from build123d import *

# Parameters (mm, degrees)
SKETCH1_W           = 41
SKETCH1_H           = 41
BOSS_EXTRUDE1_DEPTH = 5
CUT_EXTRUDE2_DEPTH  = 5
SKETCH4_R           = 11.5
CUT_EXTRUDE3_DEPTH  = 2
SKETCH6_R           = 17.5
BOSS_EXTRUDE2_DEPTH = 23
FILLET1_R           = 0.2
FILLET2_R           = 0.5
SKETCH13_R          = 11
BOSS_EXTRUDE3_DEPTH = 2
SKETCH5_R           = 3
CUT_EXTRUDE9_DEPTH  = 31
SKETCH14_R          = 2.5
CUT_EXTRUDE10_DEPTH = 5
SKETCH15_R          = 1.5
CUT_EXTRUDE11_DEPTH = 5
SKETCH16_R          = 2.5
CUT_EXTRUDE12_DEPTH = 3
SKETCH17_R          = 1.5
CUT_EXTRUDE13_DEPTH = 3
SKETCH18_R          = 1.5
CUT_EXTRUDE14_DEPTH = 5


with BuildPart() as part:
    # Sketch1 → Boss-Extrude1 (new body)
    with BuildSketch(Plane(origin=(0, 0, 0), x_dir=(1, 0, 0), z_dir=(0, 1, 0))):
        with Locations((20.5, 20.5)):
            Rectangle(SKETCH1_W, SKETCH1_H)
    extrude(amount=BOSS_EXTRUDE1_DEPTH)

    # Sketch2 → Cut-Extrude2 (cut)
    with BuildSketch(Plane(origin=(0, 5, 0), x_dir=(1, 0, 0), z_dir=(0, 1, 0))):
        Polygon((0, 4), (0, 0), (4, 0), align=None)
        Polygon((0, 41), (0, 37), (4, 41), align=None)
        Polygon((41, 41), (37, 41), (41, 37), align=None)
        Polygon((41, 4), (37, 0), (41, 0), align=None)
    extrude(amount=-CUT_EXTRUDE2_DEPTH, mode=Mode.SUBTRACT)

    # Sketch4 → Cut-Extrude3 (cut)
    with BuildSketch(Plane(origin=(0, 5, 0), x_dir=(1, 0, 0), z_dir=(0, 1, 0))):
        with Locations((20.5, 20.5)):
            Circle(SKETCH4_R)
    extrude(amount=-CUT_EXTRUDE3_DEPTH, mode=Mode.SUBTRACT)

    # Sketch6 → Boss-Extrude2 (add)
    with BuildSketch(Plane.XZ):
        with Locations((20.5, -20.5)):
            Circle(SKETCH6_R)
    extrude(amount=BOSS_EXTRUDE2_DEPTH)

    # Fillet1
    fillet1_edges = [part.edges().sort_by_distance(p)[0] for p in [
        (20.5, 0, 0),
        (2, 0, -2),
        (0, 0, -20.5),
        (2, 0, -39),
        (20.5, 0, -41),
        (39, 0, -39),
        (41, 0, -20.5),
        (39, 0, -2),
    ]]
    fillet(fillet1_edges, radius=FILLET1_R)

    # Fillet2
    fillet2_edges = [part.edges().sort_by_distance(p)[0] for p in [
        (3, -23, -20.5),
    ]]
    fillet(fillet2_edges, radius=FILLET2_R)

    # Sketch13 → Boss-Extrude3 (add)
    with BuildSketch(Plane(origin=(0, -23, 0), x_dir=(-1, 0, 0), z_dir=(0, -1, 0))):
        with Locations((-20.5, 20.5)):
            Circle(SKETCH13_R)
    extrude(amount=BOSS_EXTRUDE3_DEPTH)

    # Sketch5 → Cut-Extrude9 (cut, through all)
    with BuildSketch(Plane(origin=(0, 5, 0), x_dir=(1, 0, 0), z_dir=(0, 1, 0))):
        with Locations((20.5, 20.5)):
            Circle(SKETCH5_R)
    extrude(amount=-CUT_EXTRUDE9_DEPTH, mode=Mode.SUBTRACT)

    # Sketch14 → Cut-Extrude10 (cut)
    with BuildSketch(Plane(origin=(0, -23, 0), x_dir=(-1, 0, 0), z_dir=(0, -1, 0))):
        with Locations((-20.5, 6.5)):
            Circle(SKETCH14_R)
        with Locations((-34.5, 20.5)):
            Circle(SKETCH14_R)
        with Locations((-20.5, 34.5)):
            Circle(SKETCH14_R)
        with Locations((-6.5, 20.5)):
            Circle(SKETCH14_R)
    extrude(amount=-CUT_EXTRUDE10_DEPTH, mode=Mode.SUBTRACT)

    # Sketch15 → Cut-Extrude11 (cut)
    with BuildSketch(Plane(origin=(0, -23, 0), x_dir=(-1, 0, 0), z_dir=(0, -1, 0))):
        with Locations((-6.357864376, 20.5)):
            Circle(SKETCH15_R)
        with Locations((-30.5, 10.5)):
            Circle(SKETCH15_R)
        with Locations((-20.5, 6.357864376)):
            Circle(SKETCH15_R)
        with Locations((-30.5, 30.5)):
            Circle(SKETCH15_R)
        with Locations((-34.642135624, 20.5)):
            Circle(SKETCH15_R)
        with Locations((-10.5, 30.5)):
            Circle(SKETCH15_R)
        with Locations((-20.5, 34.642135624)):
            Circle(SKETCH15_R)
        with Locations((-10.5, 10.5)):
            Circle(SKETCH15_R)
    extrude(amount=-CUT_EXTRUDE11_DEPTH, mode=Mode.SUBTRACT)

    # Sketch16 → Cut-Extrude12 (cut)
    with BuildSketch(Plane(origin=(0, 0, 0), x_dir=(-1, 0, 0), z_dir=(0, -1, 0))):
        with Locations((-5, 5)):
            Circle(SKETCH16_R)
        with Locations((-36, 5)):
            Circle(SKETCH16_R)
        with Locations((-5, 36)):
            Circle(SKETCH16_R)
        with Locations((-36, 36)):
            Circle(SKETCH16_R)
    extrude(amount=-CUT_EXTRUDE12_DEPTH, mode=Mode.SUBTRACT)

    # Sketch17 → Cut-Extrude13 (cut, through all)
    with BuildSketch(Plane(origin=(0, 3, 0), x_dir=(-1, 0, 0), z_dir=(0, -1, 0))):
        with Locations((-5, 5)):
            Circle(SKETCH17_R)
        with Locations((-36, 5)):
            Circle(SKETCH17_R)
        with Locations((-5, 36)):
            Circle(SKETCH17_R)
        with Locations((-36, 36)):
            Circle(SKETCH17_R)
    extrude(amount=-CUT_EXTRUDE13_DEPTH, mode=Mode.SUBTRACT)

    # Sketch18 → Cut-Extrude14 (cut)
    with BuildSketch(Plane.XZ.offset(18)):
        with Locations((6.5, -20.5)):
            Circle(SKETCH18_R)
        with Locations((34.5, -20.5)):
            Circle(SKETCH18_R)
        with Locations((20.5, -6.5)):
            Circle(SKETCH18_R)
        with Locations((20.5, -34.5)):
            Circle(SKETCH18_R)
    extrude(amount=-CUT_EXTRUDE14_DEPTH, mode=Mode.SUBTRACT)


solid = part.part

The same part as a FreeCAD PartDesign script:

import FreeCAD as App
import Part
import Sketcher
Q = App.Units.Quantity


def edges_at(feature, points):
    """Names of the edges that pass closest to the given points."""
    edges = feature.Shape.Edges
    near = lambda p: min(range(len(edges)), key=lambda i: edges[i].distToShape(Part.Vertex(*p))[0])
    return sorted({f"Edge{near(p) + 1}" for p in points})

doc = App.newDocument("Part")
params = doc.addObject("Spreadsheet::Sheet", "Params")
for row, (alias, value) in enumerate([
    ("sketch1_width", "41 mm"),
    ("pad1_length", "5 mm"),
    ("sketch2_width", "4 mm"),
    ("pocket1_length", "5 mm"),
    ("sketch3_diameter", "23 mm"),
    ("pocket2_length", "2 mm"),
    ("sketch4_diameter", "35 mm"),
    ("pad2_length", "23 mm"),
    ("fillet_radius", "0.2 mm"),
    ("fillet2_radius", "0.5 mm"),
    ("sketch5_diameter", "22 mm"),
    ("pad3_length", "2 mm"),
    ("sketch6_diameter", "6 mm"),
    ("sketch7_diameter", "5 mm"),
    ("pocket4_length", "5 mm"),
    ("sketch8_diameter", "3 mm"),
    ("pocket5_length", "5 mm"),
    ("sketch9_diameter", "5 mm"),
    ("pocket6_length", "3 mm"),
    ("sketch10_diameter", "3 mm"),
    ("sketch11_diameter", "3 mm"),
    ("pocket8_length", "5 mm"),
], start=1):
    params.set(f"A{row}", alias)
    params.set(f"B{row}", "=" + value)
    params.setAlias(f"B{row}", alias)

body = doc.addObject("PartDesign::Body", "Body")

# Sketch on XZ plane
sketch1 = doc.addObject("Sketcher::SketchObject", "Sketch")
body.addObject(sketch1)
sketch1.AttachmentSupport = (doc.XZ_Plane, [""])
sketch1.MapMode = "FlatFace"
sketch1.addGeometry([
    Part.LineSegment(App.Vector(0, -41, 0), App.Vector(0, 0, 0)),
    Part.LineSegment(App.Vector(0, 0, 0), App.Vector(41, 0, 0)),
    Part.LineSegment(App.Vector(41, 0, 0), App.Vector(41, -41, 0)),
    Part.LineSegment(App.Vector(41, -41, 0), App.Vector(0, -41, 0)),
], False)
sketch1.addConstraint([
    Sketcher.Constraint("Coincident", 0, 2, 1, 1),
    Sketcher.Constraint("Coincident", 1, 2, 2, 1),
    Sketcher.Constraint("Coincident", 2, 2, 3, 1),
    Sketcher.Constraint("Coincident", 3, 2, 0, 1),
    Sketcher.Constraint("Vertical", 0),
    Sketcher.Constraint("Horizontal", 1),
    Sketcher.Constraint("Vertical", 2),
    Sketcher.Constraint("Horizontal", 3),
    Sketcher.Constraint("Coincident", 0, 2, -1, 1),
    Sketcher.Constraint("Equal", 3, 0),
    Sketcher.Constraint("DistanceX", 1, 1, 1, 2, Q("41 mm")),
])
sketch1.setExpression("Constraints[10]", "Params.sketch1_width")
pad1 = doc.addObject("PartDesign::Pad", "Pad")
body.addObject(pad1)
pad1.Profile = sketch1
pad1.setExpression("Length", "Params.pad1_length")
pad1.Reversed = True

# Sketch on XZ plane
sketch2 = doc.addObject("Sketcher::SketchObject", "Sketch001")
body.addObject(sketch2)
sketch2.AttachmentSupport = (doc.XZ_Plane, [""])
sketch2.MapMode = "FlatFace"
sketch2.AttachmentOffset = App.Placement(App.Vector(0, 0, -5), App.Rotation())
sketch2.addGeometry([
    Part.LineSegment(App.Vector(0, -4, 0), App.Vector(0, 0, 0)),  # 0
    Part.LineSegment(App.Vector(0, 0, 0), App.Vector(4, 0, 0)),  # 1
    Part.LineSegment(App.Vector(4, 0, 0), App.Vector(0, -4, 0)),  # 2
    Part.LineSegment(App.Vector(0, -41, 0), App.Vector(0, -37, 0)),  # 3
    Part.LineSegment(App.Vector(0, -37, 0), App.Vector(4, -41, 0)),  # 4
    Part.LineSegment(App.Vector(4, -41, 0), App.Vector(0, -41, 0)),  # 5
    Part.LineSegment(App.Vector(41, -41, 0), App.Vector(37, -41, 0)),  # 6
    Part.LineSegment(App.Vector(37, -41, 0), App.Vector(41, -37, 0)),  # 7
    Part.LineSegment(App.Vector(41, -37, 0), App.Vector(41, -41, 0)),  # 8
    Part.LineSegment(App.Vector(41, -4, 0), App.Vector(37, 0, 0)),  # 9
    Part.LineSegment(App.Vector(37, 0, 0), App.Vector(41, 0, 0)),  # 10
    Part.LineSegment(App.Vector(41, 0, 0), App.Vector(41, -4, 0)),  # 11
], False)
sketch2.addConstraint([
    Sketcher.Constraint("Coincident", 0, 2, 1, 1),
    Sketcher.Constraint("Coincident", 1, 2, 2, 1),
    Sketcher.Constraint("Coincident", 2, 2, 0, 1),
    Sketcher.Constraint("Coincident", 3, 2, 4, 1),
    Sketcher.Constraint("Coincident", 4, 2, 5, 1),
    Sketcher.Constraint("Coincident", 5, 2, 3, 1),
    Sketcher.Constraint("Coincident", 6, 2, 7, 1),
    Sketcher.Constraint("Coincident", 7, 2, 8, 1),
    Sketcher.Constraint("Coincident", 8, 2, 6, 1),
    Sketcher.Constraint("Coincident", 9, 2, 10, 1),
    Sketcher.Constraint("Coincident", 10, 2, 11, 1),
    Sketcher.Constraint("Coincident", 11, 2, 9, 1),
    Sketcher.Constraint("Vertical", 0),
    Sketcher.Constraint("Horizontal", 1),
    Sketcher.Constraint("Vertical", 3),
    Sketcher.Constraint("Horizontal", 5),
    Sketcher.Constraint("Horizontal", 6),
    Sketcher.Constraint("Vertical", 8),
    Sketcher.Constraint("Horizontal", 10),
    Sketcher.Constraint("Vertical", 11),
    Sketcher.Constraint("Coincident", 0, 2, -1, 1),
    Sketcher.Constraint("PointOnObject", 3, 2, -2),
    Sketcher.Constraint("PointOnObject", 9, 2, -1),
    Sketcher.Constraint("Perpendicular", 2, 4),
    Sketcher.Constraint("Perpendicular", 4, 7),
    Sketcher.Constraint("Perpendicular", 7, 9),
    Sketcher.Constraint("Horizontal", 5, 2, 6, 2),
    Sketcher.Constraint("Horizontal", 3, 2, 7, 2),
    Sketcher.Constraint("Horizontal", 2, 2, 11, 2),
    Sketcher.Constraint("Vertical", 1, 2, 4, 2),
    Sketcher.Constraint("Vertical", 6, 2, 9, 2),
    Sketcher.Constraint("Vertical", 8, 2, 10, 2),
    Sketcher.Constraint("DistanceX", 1, 1, 1, 2, Q("4 mm")),
    Sketcher.Constraint("DistanceY", 3, 2, -1, 1, Q("37 mm")),
    Sketcher.Constraint("DistanceX", -1, 1, 6, 2, Q("37 mm")),
])
sketch2.setExpression("Constraints[32]", "Params.sketch2_width")
pocket1 = doc.addObject("PartDesign::Pocket", "Pocket")
body.addObject(pocket1)
pocket1.Profile = sketch2
pocket1.setExpression("Length", "Params.pocket1_length")
pocket1.Reversed = True

# Sketch on XZ plane
sketch3 = doc.addObject("Sketcher::SketchObject", "Sketch002")
body.addObject(sketch3)
sketch3.AttachmentSupport = (doc.XZ_Plane, [""])
sketch3.MapMode = "FlatFace"
sketch3.AttachmentOffset = App.Placement(App.Vector(0, 0, -5), App.Rotation())
sketch3.addGeometry(Part.Circle(App.Vector(20, -20, 0), App.Vector(0, 0, 1), 12), False)
sketch3.addConstraint([
    Sketcher.Constraint("Diameter", 0, Q("23 mm")),
    Sketcher.Constraint("DistanceX", -1, 1, 0, 3, Q("20.5 mm")),
    Sketcher.Constraint("DistanceY", 0, 3, -1, 1, Q("20.5 mm")),
])
sketch3.setExpression("Constraints[0]", "Params.sketch3_diameter")
pocket2 = doc.addObject("PartDesign::Pocket", "Pocket001")
body.addObject(pocket2)
pocket2.Profile = sketch3
pocket2.setExpression("Length", "Params.pocket2_length")
pocket2.Reversed = True

# Sketch on XZ plane
sketch4 = doc.addObject("Sketcher::SketchObject", "Sketch003")
body.addObject(sketch4)
sketch4.AttachmentSupport = (doc.XZ_Plane, [""])
sketch4.MapMode = "FlatFace"
sketch4.addGeometry(Part.Circle(App.Vector(20, -20, 0), App.Vector(0, 0, 1), 18), False)
sketch4.addConstraint([
    Sketcher.Constraint("Diameter", 0, Q("35 mm")),
    Sketcher.Constraint("DistanceX", -1, 1, 0, 3, Q("20.5 mm")),
    Sketcher.Constraint("DistanceY", 0, 3, -1, 1, Q("20.5 mm")),
])
sketch4.setExpression("Constraints[0]", "Params.sketch4_diameter")
pad2 = doc.addObject("PartDesign::Pad", "Pad001")
body.addObject(pad2)
pad2.Profile = sketch4
pad2.setExpression("Length", "Params.pad2_length")
doc.recompute()

fillet = doc.addObject("PartDesign::Fillet", "Fillet")
body.addObject(fillet)
fillet.Base = (pad2, edges_at(pad2, [
    (20.5, 0, 0),
    (2, 0, -2),
    (0, 0, -20.5),
    (2, 0, -39),
    (20.5, 0, -41),
    (39, 0, -39),
    (41, 0, -20.5),
    (39, 0, -2),
]))
fillet.setExpression("Radius", "Params.fillet_radius")
doc.recompute()

fillet2 = doc.addObject("PartDesign::Fillet", "Fillet001")
body.addObject(fillet2)
fillet2.Base = (fillet, edges_at(fillet, [(3, -23, -20.5)]))
fillet2.setExpression("Radius", "Params.fillet2_radius")

# Sketch on XZ plane
sketch5 = doc.addObject("Sketcher::SketchObject", "Sketch004")
body.addObject(sketch5)
sketch5.AttachmentSupport = (doc.XZ_Plane, [""])
sketch5.MapMode = "FlatFace"
sketch5.AttachmentOffset = App.Placement(App.Vector(0, 0, 23), App.Rotation())
sketch5.addGeometry(Part.Circle(App.Vector(20, -20, 0), App.Vector(0, 0, 1), 11), False)
sketch5.addConstraint([
    Sketcher.Constraint("Diameter", 0, Q("22 mm")),
    Sketcher.Constraint("DistanceX", -1, 1, 0, 3, Q("20.5 mm")),
    Sketcher.Constraint("DistanceY", 0, 3, -1, 1, Q("20.5 mm")),
])
sketch5.setExpression("Constraints[0]", "Params.sketch5_diameter")
pad3 = doc.addObject("PartDesign::Pad", "Pad002")
body.addObject(pad3)
pad3.Profile = sketch5
pad3.setExpression("Length", "Params.pad3_length")

# Sketch on XZ plane
sketch6 = doc.addObject("Sketcher::SketchObject", "Sketch005")
body.addObject(sketch6)
sketch6.AttachmentSupport = (doc.XZ_Plane, [""])
sketch6.MapMode = "FlatFace"
sketch6.AttachmentOffset = App.Placement(App.Vector(0, 0, -5), App.Rotation())
sketch6.addGeometry(Part.Circle(App.Vector(20.5, -20.5, 0), App.Vector(0, 0, 1), 3), False)
sketch6.addConstraint([
    Sketcher.Constraint("Diameter", 0, Q("6 mm")),
    Sketcher.Constraint("DistanceX", -1, 1, 0, 3, Q("20.5 mm")),
    Sketcher.Constraint("DistanceY", 0, 3, -1, 1, Q("20.5 mm")),
])
sketch6.setExpression("Constraints[0]", "Params.sketch6_diameter")
pocket3 = doc.addObject("PartDesign::Pocket", "Pocket002")
body.addObject(pocket3)
pocket3.Profile = sketch6
pocket3.Type = "ThroughAll"
pocket3.Reversed = True

# Sketch on XZ plane
sketch7 = doc.addObject("Sketcher::SketchObject", "Sketch006")
body.addObject(sketch7)
sketch7.AttachmentSupport = (doc.XZ_Plane, [""])
sketch7.MapMode = "FlatFace"
sketch7.AttachmentOffset = App.Placement(App.Vector(0, 0, 23), App.Rotation())
sketch7.addGeometry([
    Part.Circle(App.Vector(20.5, -6.5, 0), App.Vector(0, 0, 1), 2.5),
    Part.Circle(App.Vector(34.5, -20.5, 0), App.Vector(0, 0, 1), 2.5),
    Part.Circle(App.Vector(20.5, -34.5, 0), App.Vector(0, 0, 1), 2.5),
    Part.Circle(App.Vector(6.5, -20.5, 0), App.Vector(0, 0, 1), 2.5),
], False)
sketch7.addConstraint([
    Sketcher.Constraint("Equal", 0, 1),
    Sketcher.Constraint("Equal", 1, 2),
    Sketcher.Constraint("Equal", 2, 3),
    Sketcher.Constraint("Horizontal", 1, 3, 3, 3),
    Sketcher.Constraint("Vertical", 0, 3, 2, 3),
    Sketcher.Constraint("Diameter", 0, Q("5 mm")),
    Sketcher.Constraint("DistanceX", 0, 3, 1, 3, Q("14 mm")),
    Sketcher.Constraint("DistanceY", 1, 3, 0, 3, Q("14 mm")),
    Sketcher.Constraint("DistanceY", 2, 3, 1, 3, Q("14 mm")),
    Sketcher.Constraint("DistanceX", 3, 3, 0, 3, Q("14 mm")),
    Sketcher.Constraint("DistanceX", -1, 1, 0, 3, Q("20.5 mm")),
    Sketcher.Constraint("DistanceY", 0, 3, -1, 1, Q("6.5 mm")),
])
sketch7.setExpression("Constraints[5]", "Params.sketch7_diameter")
pocket4 = doc.addObject("PartDesign::Pocket", "Pocket003")
body.addObject(pocket4)
pocket4.Profile = sketch7
pocket4.setExpression("Length", "Params.pocket4_length")

# Sketch on XZ plane
sketch8 = doc.addObject("Sketcher::SketchObject", "Sketch007")
body.addObject(sketch8)
sketch8.AttachmentSupport = (doc.XZ_Plane, [""])
sketch8.MapMode = "FlatFace"
sketch8.AttachmentOffset = App.Placement(App.Vector(0, 0, 23), App.Rotation())
sketch8.addGeometry([
    Part.Circle(App.Vector(6.4, -20.5, 0), App.Vector(0, 0, 1), 1.5),  # 0
    Part.Circle(App.Vector(30.5, -10.5, 0), App.Vector(0, 0, 1), 1.5),  # 1
    Part.Circle(App.Vector(20.5, -6.4, 0), App.Vector(0, 0, 1), 1.5),  # 2
    Part.Circle(App.Vector(30.5, -30.5, 0), App.Vector(0, 0, 1), 1.5),  # 3
    Part.Circle(App.Vector(34.6, -20.5, 0), App.Vector(0, 0, 1), 1.5),  # 4
    Part.Circle(App.Vector(10.5, -30.5, 0), App.Vector(0, 0, 1), 1.5),  # 5
    Part.Circle(App.Vector(20.5, -34.6, 0), App.Vector(0, 0, 1), 1.5),  # 6
    Part.Circle(App.Vector(10.5, -10.5, 0), App.Vector(0, 0, 1), 1.5),  # 7
], False)
sketch8.addConstraint([
    Sketcher.Constraint("Equal", 0, 1),
    Sketcher.Constraint("Equal", 1, 2),
    Sketcher.Constraint("Equal", 2, 3),
    Sketcher.Constraint("Equal", 3, 4),
    Sketcher.Constraint("Equal", 4, 5),
    Sketcher.Constraint("Equal", 5, 6),
    Sketcher.Constraint("Equal", 6, 7),
    Sketcher.Constraint("Horizontal", 0, 3, 4, 3),
    Sketcher.Constraint("Horizontal", 3, 3, 5, 3),
    Sketcher.Constraint("Horizontal", 1, 3, 7, 3),
    Sketcher.Constraint("Vertical", 1, 3, 3, 3),
    Sketcher.Constraint("Vertical", 2, 3, 6, 3),
    Sketcher.Constraint("Vertical", 5, 3, 7, 3),
    Sketcher.Constraint("Diameter", 0, Q("3 mm")),
    Sketcher.Constraint("DistanceY", 0, 3, 1, 3, Q("10 mm")),
    Sketcher.Constraint("DistanceX", 2, 3, 1, 3, Q("10 mm")),
    Sketcher.Constraint("DistanceY", 3, 3, 1, 3, Q("20 mm")),
    Sketcher.Constraint("DistanceX", 5, 3, 3, 3, Q("20 mm")),
    Sketcher.Constraint("DistanceY", 0, 3, -1, 1, Q("20.5 mm")),
    Sketcher.Constraint("DistanceX", -1, 1, 1, 3, Q("30.5 mm")),
    Sketcher.Constraint("DistanceX", 0, 3, 4, 3, Q("28.284271 mm")),
    Sketcher.Constraint("DistanceX", -1, 1, 0, 3, Q("6.357864 mm")),
    Sketcher.Constraint("DistanceY", 2, 3, -1, 1, Q("6.357864 mm")),
    Sketcher.Constraint("DistanceY", 6, 3, -1, 1, Q("34.642136 mm")),
])
sketch8.setExpression("Constraints[13]", "Params.sketch8_diameter")
pocket5 = doc.addObject("PartDesign::Pocket", "Pocket004")
body.addObject(pocket5)
pocket5.Profile = sketch8
pocket5.setExpression("Length", "Params.pocket5_length")

# Sketch on XZ plane
sketch9 = doc.addObject("Sketcher::SketchObject", "Sketch008")
body.addObject(sketch9)
sketch9.AttachmentSupport = (doc.XZ_Plane, [""])
sketch9.MapMode = "FlatFace"
sketch9.addGeometry([
    Part.Circle(App.Vector(5, -5, 0), App.Vector(0, 0, 1), 2.5),
    Part.Circle(App.Vector(36, -5, 0), App.Vector(0, 0, 1), 2.5),
    Part.Circle(App.Vector(5, -36, 0), App.Vector(0, 0, 1), 2.5),
    Part.Circle(App.Vector(36, -36, 0), App.Vector(0, 0, 1), 2.5),
], False)
sketch9.addConstraint([
    Sketcher.Constraint("Equal", 0, 1),
    Sketcher.Constraint("Equal", 1, 2),
    Sketcher.Constraint("Equal", 2, 3),
    Sketcher.Constraint("Horizontal", 0, 3, 1, 3),
    Sketcher.Constraint("Horizontal", 2, 3, 3, 3),
    Sketcher.Constraint("Vertical", 0, 3, 2, 3),
    Sketcher.Constraint("Vertical", 1, 3, 3, 3),
    Sketcher.Constraint("Diameter", 0, Q("5 mm")),
    Sketcher.Constraint("DistanceX", -1, 1, 0, 3, Q("5 mm")),
    Sketcher.Constraint("DistanceY", 0, 3, -1, 1, Q("5 mm")),
    Sketcher.Constraint("DistanceX", -1, 1, 1, 3, Q("36 mm")),
    Sketcher.Constraint("DistanceY", 2, 3, -1, 1, Q("36 mm")),
])
sketch9.setExpression("Constraints[7]", "Params.sketch9_diameter")
pocket6 = doc.addObject("PartDesign::Pocket", "Pocket005")
body.addObject(pocket6)
pocket6.Profile = sketch9
pocket6.setExpression("Length", "Params.pocket6_length")

# Sketch on XZ plane
sketch10 = doc.addObject("Sketcher::SketchObject", "Sketch009")
body.addObject(sketch10)
sketch10.AttachmentSupport = (doc.XZ_Plane, [""])
sketch10.MapMode = "FlatFace"
sketch10.AttachmentOffset = App.Placement(App.Vector(0, 0, -3), App.Rotation())
sketch10.addGeometry([
    Part.Circle(App.Vector(5, -5, 0), App.Vector(0, 0, 1), 1.5),
    Part.Circle(App.Vector(36, -5, 0), App.Vector(0, 0, 1), 1.5),
    Part.Circle(App.Vector(5, -36, 0), App.Vector(0, 0, 1), 1.5),
    Part.Circle(App.Vector(36, -36, 0), App.Vector(0, 0, 1), 1.5),
], False)
sketch10.addConstraint([
    Sketcher.Constraint("Equal", 0, 1),
    Sketcher.Constraint("Equal", 1, 2),
    Sketcher.Constraint("Equal", 2, 3),
    Sketcher.Constraint("Horizontal", 0, 3, 1, 3),
    Sketcher.Constraint("Horizontal", 2, 3, 3, 3),
    Sketcher.Constraint("Vertical", 0, 3, 2, 3),
    Sketcher.Constraint("Vertical", 1, 3, 3, 3),
    Sketcher.Constraint("Diameter", 0, Q("3 mm")),
    Sketcher.Constraint("DistanceX", -1, 1, 0, 3, Q("5 mm")),
    Sketcher.Constraint("DistanceY", 0, 3, -1, 1, Q("5 mm")),
    Sketcher.Constraint("DistanceX", -1, 1, 1, 3, Q("36 mm")),
    Sketcher.Constraint("DistanceY", 2, 3, -1, 1, Q("36 mm")),
])
sketch10.setExpression("Constraints[7]", "Params.sketch10_diameter")
pocket7 = doc.addObject("PartDesign::Pocket", "Pocket006")
body.addObject(pocket7)
pocket7.Profile = sketch10
pocket7.Type = "ThroughAll"

# Sketch on XZ plane
sketch11 = doc.addObject("Sketcher::SketchObject", "Sketch010")
body.addObject(sketch11)
sketch11.AttachmentSupport = (doc.XZ_Plane, [""])
sketch11.MapMode = "FlatFace"
sketch11.AttachmentOffset = App.Placement(App.Vector(0, 0, 18), App.Rotation())
sketch11.addGeometry([
    Part.Circle(App.Vector(6.5, -20.5, 0), App.Vector(0, 0, 1), 1.5),
    Part.Circle(App.Vector(34.5, -20.5, 0), App.Vector(0, 0, 1), 1.5),
    Part.Circle(App.Vector(20.5, -6.5, 0), App.Vector(0, 0, 1), 1.5),
    Part.Circle(App.Vector(20.5, -34.5, 0), App.Vector(0, 0, 1), 1.5),
], False)
sketch11.addConstraint([
    Sketcher.Constraint("Equal", 0, 1),
    Sketcher.Constraint("Equal", 1, 2),
    Sketcher.Constraint("Equal", 2, 3),
    Sketcher.Constraint("Horizontal", 0, 3, 1, 3),
    Sketcher.Constraint("Vertical", 2, 3, 3, 3),
    Sketcher.Constraint("Diameter", 0, Q("3 mm")),
    Sketcher.Constraint("DistanceX", 0, 3, 1, 3, Q("28 mm")),
    Sketcher.Constraint("DistanceX", 0, 3, 2, 3, Q("14 mm")),
    Sketcher.Constraint("DistanceY", 0, 3, 2, 3, Q("14 mm")),
    Sketcher.Constraint("DistanceY", 3, 3, 0, 3, Q("14 mm")),
    Sketcher.Constraint("DistanceX", -1, 1, 0, 3, Q("6.5 mm")),
    Sketcher.Constraint("DistanceY", 0, 3, -1, 1, Q("20.5 mm")),
])
sketch11.setExpression("Constraints[5]", "Params.sketch11_diameter")
pocket8 = doc.addObject("PartDesign::Pocket", "Pocket007")
body.addObject(pocket8)
pocket8.Profile = sketch11
pocket8.setExpression("Length", "Params.pocket8_length")

doc.recompute()
